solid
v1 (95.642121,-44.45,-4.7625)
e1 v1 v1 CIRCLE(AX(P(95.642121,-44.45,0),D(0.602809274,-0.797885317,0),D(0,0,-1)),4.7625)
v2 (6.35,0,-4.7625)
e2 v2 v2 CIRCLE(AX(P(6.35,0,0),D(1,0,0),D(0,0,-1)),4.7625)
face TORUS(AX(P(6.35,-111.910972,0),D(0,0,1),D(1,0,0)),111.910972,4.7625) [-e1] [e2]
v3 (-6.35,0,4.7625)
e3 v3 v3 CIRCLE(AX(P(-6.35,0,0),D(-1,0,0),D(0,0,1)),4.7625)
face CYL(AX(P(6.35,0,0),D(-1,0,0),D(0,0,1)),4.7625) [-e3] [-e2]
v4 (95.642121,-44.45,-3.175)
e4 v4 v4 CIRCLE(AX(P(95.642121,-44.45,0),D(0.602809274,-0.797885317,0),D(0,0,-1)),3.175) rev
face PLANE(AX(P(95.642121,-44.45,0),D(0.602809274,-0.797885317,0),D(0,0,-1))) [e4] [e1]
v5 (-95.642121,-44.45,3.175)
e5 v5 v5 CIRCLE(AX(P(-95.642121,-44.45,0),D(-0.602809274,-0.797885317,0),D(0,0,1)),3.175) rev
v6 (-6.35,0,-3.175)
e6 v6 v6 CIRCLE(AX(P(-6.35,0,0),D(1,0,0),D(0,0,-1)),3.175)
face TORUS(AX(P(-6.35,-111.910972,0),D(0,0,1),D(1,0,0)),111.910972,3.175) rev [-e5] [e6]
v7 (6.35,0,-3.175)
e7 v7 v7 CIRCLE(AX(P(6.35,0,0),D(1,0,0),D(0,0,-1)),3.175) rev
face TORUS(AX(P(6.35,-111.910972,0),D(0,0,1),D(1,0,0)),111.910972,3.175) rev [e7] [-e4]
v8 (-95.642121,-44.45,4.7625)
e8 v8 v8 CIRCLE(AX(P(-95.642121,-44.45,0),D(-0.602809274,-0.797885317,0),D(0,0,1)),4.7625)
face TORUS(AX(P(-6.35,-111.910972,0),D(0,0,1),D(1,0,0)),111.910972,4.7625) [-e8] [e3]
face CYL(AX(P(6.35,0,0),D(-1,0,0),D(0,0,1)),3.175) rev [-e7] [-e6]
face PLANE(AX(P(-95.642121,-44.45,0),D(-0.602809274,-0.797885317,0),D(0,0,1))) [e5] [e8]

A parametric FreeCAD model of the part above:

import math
import FreeCAD as App
import Part
import Sketcher
Q = App.Units.Quantity

doc = App.newDocument("Part")
body = doc.addObject("PartDesign::Body", "Body")

sketch1 = body.newObject("Sketcher::SketchObject", "Sketch")
sketch1.AttachmentSupport = (doc.getObject("YZ_Plane"), [""])
sketch1.MapMode = "FlatFace"
sketch1.addGeometry([
    Part.Circle(App.Vector(0, 0, 0), App.Vector(0, 0, 1), 4.8),
    Part.Circle(App.Vector(0, 0, 0), App.Vector(0, 0, 1), 3.2),
], False)
sketch1.addConstraint([
    Sketcher.Constraint("Coincident", 0, 3, -1, 1),
    Sketcher.Constraint("Coincident", 1, 3, -1, 1),
    Sketcher.Constraint("Diameter", 1, Q("0.25 in")),
    Sketcher.Constraint("Diameter", 0, Q("0.375 in")),
])
pad1 = body.newObject("PartDesign::Pad", "Pad")
pad1.Profile = sketch1
pad1.Length = Q("0.5 in")
pad1.Midplane = True

sketch2 = body.newObject("Sketcher::SketchObject", "Sketch001")
sketch2.AttachmentSupport = (doc.getObject("YZ_Plane"), [""])
sketch2.MapMode = "FlatFace"
sketch2.AttachmentOffset = App.Placement(App.Vector(0, 0, -0.25 * 25.4), App.Rotation())
sketch2.addGeometry([
    Part.Circle(App.Vector(0, 0, 0), App.Vector(0, 0, 1), 4.8),
    Part.Circle(App.Vector(0, 0, 0), App.Vector(0, 0, 1), 3.2),
], False)
sketch2.addConstraint([
    Sketcher.Constraint("Coincident", 0, 3, -1, 1),
    Sketcher.Constraint("Coincident", 1, 3, -1, 1),
    Sketcher.Constraint("Diameter", 1, Q("0.25 in")),
    Sketcher.Constraint("Diameter", 0, Q("0.375 in")),
])

sketch3 = body.newObject("Sketcher::SketchObject", "Sketch002")
sketch3.AttachmentSupport = (doc.getObject("XY_Plane"), [""])
sketch3.MapMode = "FlatFace"
sketch3.addGeometry(Part.ArcOfCircle(Part.Circle(App.Vector(-6, -112, 0), App.Vector(0, 0, 1), 112), math.radians(90), math.radians(143)), False)
sketch3.addConstraint([
    Sketcher.Constraint("PointOnObject", 0, 1, -1),
    Sketcher.Constraint("DistanceX", 0, 3, -1, 1, Q("0.25 in")),
    Sketcher.Constraint("DistanceX", 0, 1, -1, 1, Q("0.25 in")),
    Sketcher.Constraint("DistanceY", 0, 2, -1, 1, Q("1.75 in")),
    Sketcher.Constraint("Radius", 0, 111.910972),
])
doc.recompute()

additivepipe = body.newObject("PartDesign::AdditivePipe", "AdditivePipe")
additivepipe.Profile = sketch2
additivepipe.Spine = (sketch3, ["Edge1"])

sketch4 = body.newObject("Sketcher::SketchObject", "Sketch003")
sketch4.AttachmentSupport = (doc.getObject("YZ_Plane"), [""])
sketch4.MapMode = "FlatFace"
sketch4.AttachmentOffset = App.Placement(App.Vector(0, 0, 0.25 * 25.4), App.Rotation())
sketch4.addGeometry([
    Part.Circle(App.Vector(0, 0, 0), App.Vector(0, 0, 1), 4.8),
    Part.Circle(App.Vector(0, 0, 0), App.Vector(0, 0, 1), 3.2),
], False)
sketch4.addConstraint([
    Sketcher.Constraint("Coincident", 0, 3, -1, 1),
    Sketcher.Constraint("Coincident", 1, 3, -1, 1),
    Sketcher.Constraint("Diameter", 1, Q("0.25 in")),
    Sketcher.Constraint("Diameter", 0, Q("0.375 in")),
])

sketch5 = body.newObject("Sketcher::SketchObject", "Sketch004")
sketch5.AttachmentSupport = (doc.getObject("XY_Plane"), [""])
sketch5.MapMode = "FlatFace"
sketch5.addGeometry(Part.ArcOfCircle(Part.Circle(App.Vector(6, -112, 0), App.Vector(0, 0, 1), 112), math.radians(37), math.radians(90)), False)
sketch5.addConstraint([
    Sketcher.Constraint("PointOnObject", 0, 2, -1),
    Sketcher.Constraint("DistanceX", -1, 1, 0, 3, Q("0.25 in")),
    Sketcher.Constraint("DistanceY", 0, 1, -1, 1, Q("1.75 in")),
    Sketcher.Constraint("DistanceX", -1, 1, 0, 2, Q("0.25 in")),
    Sketcher.Constraint("Radius", 0, 111.910972),
])
doc.recompute()

additivepipe2 = body.newObject("PartDesign::AdditivePipe", "AdditivePipe001")
additivepipe2.Profile = sketch4
additivepipe2.Spine = (sketch5, ["Edge1"])

doc.recompute()
